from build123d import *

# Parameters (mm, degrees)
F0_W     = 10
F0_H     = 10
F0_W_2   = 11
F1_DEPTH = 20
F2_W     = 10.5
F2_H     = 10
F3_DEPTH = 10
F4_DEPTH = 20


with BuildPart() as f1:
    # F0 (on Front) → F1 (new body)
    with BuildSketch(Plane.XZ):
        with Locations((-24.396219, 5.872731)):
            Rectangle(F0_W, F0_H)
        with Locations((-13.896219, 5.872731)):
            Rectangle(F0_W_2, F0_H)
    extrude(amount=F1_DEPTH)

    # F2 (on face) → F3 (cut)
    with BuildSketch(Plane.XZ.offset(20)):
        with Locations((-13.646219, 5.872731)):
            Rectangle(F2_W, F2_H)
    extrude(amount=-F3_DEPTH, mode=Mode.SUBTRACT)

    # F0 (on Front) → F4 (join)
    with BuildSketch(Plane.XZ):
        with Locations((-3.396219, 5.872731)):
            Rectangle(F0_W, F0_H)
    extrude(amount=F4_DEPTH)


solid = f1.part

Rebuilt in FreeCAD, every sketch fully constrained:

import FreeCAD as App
import Part
import Sketcher
from FreeCAD import Vector
Q = App.Units.Quantity

doc = App.newDocument("Part")
body = doc.addObject("PartDesign::Body", "Body")

# Sketch on XZ plane
sketch1 = doc.addObject("Sketcher::SketchObject", "Sketch")
body.addObject(sketch1)
sketch1.AttachmentSupport = (doc.XZ_Plane, [""])
sketch1.MapMode = "FlatFace"
sketch1.addGeometry(Part.LineSegment(Vector(-29, 11, 0), Vector(-29, 1, 0)), False)
sketch1.addGeometry(Part.LineSegment(Vector(-29, 1, 0), Vector(-8, 1, 0)), False)
sketch1.addGeometry(Part.LineSegment(Vector(-8, 1, 0), Vector(-8, 11, 0)), False)
sketch1.addGeometry(Part.LineSegment(Vector(-8, 11, 0), Vector(-29, 11, 0)), False)
sketch1.addConstraint(Sketcher.Constraint("Coincident", 0, 2, 1, 1))
sketch1.addConstraint(Sketcher.Constraint("Coincident", 1, 2, 2, 1))
sketch1.addConstraint(Sketcher.Constraint("Coincident", 2, 2, 3, 1))
sketch1.addConstraint(Sketcher.Constraint("Coincident", 3, 2, 0, 1))
sketch1.addConstraint(Sketcher.Constraint("Vertical", 0))
sketch1.addConstraint(Sketcher.Constraint("Horizontal", 1))
sketch1.addConstraint(Sketcher.Constraint("Vertical", 2))
sketch1.addConstraint(Sketcher.Constraint("Horizontal", 3))
sketch1.addConstraint(Sketcher.Constraint("DistanceX", 1, 1, 1, 2, Q("21 mm")))
sketch1.addConstraint(Sketcher.Constraint("DistanceY", 0, 2, 0, 1, Q("10 mm")))
sketch1.addConstraint(Sketcher.Constraint("DistanceX", 0, 2, -1, 1, Q("29.396219 mm")))
sketch1.addConstraint(Sketcher.Constraint("DistanceY", -1, 1, 0, 2, Q("0.872731 mm")))
pad1 = doc.addObject("PartDesign::Pad", "Pad")
body.addObject(pad1)
pad1.Profile = sketch1
pad1.Length = 20

# Sketch on XZ plane
sketch2 = doc.addObject("Sketcher::SketchObject", "Sketch001")
body.addObject(sketch2)
sketch2.AttachmentSupport = (doc.XZ_Plane, [""])
sketch2.MapMode = "FlatFace"
sketch2.AttachmentOffset = App.Placement(Vector(0, 0, 20), App.Rotation())
sketch2.addGeometry(Part.LineSegment(Vector(-19, 11, 0), Vector(-19, 1, 0)), False)
sketch2.addGeometry(Part.LineSegment(Vector(-19, 1, 0), Vector(-8, 1, 0)), False)
sketch2.addGeometry(Part.LineSegment(Vector(-8, 1, 0), Vector(-8, 11, 0)), False)
sketch2.addGeometry(Part.LineSegment(Vector(-8, 11, 0), Vector(-19, 11, 0)), False)
sketch2.addConstraint(Sketcher.Constraint("Coincident", 0, 2, 1, 1))
sketch2.addConstraint(Sketcher.Constraint("Coincident", 1, 2, 2, 1))
sketch2.addConstraint(Sketcher.Constraint("Coincident", 2, 2, 3, 1))
sketch2.addConstraint(Sketcher.Constraint("Coincident", 3, 2, 0, 1))
sketch2.addConstraint(Sketcher.Constraint("Vertical", 0))
sketch2.addConstraint(Sketcher.Constraint("Horizontal", 1))
sketch2.addConstraint(Sketcher.Constraint("Vertical", 2))
sketch2.addConstraint(Sketcher.Constraint("Horizontal", 3))
sketch2.addConstraint(Sketcher.Constraint("DistanceY", 0, 2, 0, 1, Q("10 mm")))
sketch2.addConstraint(Sketcher.Constraint("DistanceX", 1, 1, 1, 2, Q("10.5 mm")))
sketch2.addConstraint(Sketcher.Constraint("DistanceX", 0, 2, -1, 1, Q("18.896219 mm")))
sketch2.addConstraint(Sketcher.Constraint("DistanceY", -1, 1, 0, 2, Q("0.872731 mm")))
pocket1 = doc.addObject("PartDesign::Pocket", "Pocket")
body.addObject(pocket1)
pocket1.Profile = sketch2
pocket1.Length = 10

# Sketch on XZ plane
sketch3 = doc.addObject("Sketcher::SketchObject", "Sketch002")
body.addObject(sketch3)
sketch3.AttachmentSupport = (doc.XZ_Plane, [""])
sketch3.MapMode = "FlatFace"
sketch3.addGeometry(Part.LineSegment(Vector(-8, 11, 0), Vector(-8, 1, 0)), False)
sketch3.addGeometry(Part.LineSegment(Vector(-8, 1, 0), Vector(2, 1, 0)), False)
sketch3.addGeometry(Part.LineSegment(Vector(2, 1, 0), Vector(2, 11, 0)), False)
sketch3.addGeometry(Part.LineSegment(Vector(2, 11, 0), Vector(-8, 11, 0)), False)
sketch3.addConstraint(Sketcher.Constraint("Coincident", 0, 2, 1, 1))
sketch3.addConstraint(Sketcher.Constraint("Coincident", 1, 2, 2, 1))
sketch3.addConstraint(Sketcher.Constraint("Coincident", 2, 2, 3, 1))
sketch3.addConstraint(Sketcher.Constraint("Coincident", 3, 2, 0, 1))
sketch3.addConstraint(Sketcher.Constraint("Vertical", 0))
sketch3.addConstraint(Sketcher.Constraint("Horizontal", 1))
sketch3.addConstraint(Sketcher.Constraint("Vertical", 2))
sketch3.addConstraint(Sketcher.Constraint("Horizontal", 3))
sketch3.addConstraint(Sketcher.Constraint("Equal", 3, 0))
sketch3.addConstraint(Sketcher.Constraint("DistanceX", 1, 1, 1, 2, Q("10 mm")))
sketch3.addConstraint(Sketcher.Constraint("DistanceX", 0, 2, -1, 1, Q("8.396219 mm")))
sketch3.addConstraint(Sketcher.Constraint("DistanceY", -1, 1, 0, 2, Q("0.872731 mm")))
pad2 = doc.addObject("PartDesign::Pad", "Pad001")
body.addObject(pad2)
pad2.Profile = sketch3
pad2.Length = 20

doc.recompute()
